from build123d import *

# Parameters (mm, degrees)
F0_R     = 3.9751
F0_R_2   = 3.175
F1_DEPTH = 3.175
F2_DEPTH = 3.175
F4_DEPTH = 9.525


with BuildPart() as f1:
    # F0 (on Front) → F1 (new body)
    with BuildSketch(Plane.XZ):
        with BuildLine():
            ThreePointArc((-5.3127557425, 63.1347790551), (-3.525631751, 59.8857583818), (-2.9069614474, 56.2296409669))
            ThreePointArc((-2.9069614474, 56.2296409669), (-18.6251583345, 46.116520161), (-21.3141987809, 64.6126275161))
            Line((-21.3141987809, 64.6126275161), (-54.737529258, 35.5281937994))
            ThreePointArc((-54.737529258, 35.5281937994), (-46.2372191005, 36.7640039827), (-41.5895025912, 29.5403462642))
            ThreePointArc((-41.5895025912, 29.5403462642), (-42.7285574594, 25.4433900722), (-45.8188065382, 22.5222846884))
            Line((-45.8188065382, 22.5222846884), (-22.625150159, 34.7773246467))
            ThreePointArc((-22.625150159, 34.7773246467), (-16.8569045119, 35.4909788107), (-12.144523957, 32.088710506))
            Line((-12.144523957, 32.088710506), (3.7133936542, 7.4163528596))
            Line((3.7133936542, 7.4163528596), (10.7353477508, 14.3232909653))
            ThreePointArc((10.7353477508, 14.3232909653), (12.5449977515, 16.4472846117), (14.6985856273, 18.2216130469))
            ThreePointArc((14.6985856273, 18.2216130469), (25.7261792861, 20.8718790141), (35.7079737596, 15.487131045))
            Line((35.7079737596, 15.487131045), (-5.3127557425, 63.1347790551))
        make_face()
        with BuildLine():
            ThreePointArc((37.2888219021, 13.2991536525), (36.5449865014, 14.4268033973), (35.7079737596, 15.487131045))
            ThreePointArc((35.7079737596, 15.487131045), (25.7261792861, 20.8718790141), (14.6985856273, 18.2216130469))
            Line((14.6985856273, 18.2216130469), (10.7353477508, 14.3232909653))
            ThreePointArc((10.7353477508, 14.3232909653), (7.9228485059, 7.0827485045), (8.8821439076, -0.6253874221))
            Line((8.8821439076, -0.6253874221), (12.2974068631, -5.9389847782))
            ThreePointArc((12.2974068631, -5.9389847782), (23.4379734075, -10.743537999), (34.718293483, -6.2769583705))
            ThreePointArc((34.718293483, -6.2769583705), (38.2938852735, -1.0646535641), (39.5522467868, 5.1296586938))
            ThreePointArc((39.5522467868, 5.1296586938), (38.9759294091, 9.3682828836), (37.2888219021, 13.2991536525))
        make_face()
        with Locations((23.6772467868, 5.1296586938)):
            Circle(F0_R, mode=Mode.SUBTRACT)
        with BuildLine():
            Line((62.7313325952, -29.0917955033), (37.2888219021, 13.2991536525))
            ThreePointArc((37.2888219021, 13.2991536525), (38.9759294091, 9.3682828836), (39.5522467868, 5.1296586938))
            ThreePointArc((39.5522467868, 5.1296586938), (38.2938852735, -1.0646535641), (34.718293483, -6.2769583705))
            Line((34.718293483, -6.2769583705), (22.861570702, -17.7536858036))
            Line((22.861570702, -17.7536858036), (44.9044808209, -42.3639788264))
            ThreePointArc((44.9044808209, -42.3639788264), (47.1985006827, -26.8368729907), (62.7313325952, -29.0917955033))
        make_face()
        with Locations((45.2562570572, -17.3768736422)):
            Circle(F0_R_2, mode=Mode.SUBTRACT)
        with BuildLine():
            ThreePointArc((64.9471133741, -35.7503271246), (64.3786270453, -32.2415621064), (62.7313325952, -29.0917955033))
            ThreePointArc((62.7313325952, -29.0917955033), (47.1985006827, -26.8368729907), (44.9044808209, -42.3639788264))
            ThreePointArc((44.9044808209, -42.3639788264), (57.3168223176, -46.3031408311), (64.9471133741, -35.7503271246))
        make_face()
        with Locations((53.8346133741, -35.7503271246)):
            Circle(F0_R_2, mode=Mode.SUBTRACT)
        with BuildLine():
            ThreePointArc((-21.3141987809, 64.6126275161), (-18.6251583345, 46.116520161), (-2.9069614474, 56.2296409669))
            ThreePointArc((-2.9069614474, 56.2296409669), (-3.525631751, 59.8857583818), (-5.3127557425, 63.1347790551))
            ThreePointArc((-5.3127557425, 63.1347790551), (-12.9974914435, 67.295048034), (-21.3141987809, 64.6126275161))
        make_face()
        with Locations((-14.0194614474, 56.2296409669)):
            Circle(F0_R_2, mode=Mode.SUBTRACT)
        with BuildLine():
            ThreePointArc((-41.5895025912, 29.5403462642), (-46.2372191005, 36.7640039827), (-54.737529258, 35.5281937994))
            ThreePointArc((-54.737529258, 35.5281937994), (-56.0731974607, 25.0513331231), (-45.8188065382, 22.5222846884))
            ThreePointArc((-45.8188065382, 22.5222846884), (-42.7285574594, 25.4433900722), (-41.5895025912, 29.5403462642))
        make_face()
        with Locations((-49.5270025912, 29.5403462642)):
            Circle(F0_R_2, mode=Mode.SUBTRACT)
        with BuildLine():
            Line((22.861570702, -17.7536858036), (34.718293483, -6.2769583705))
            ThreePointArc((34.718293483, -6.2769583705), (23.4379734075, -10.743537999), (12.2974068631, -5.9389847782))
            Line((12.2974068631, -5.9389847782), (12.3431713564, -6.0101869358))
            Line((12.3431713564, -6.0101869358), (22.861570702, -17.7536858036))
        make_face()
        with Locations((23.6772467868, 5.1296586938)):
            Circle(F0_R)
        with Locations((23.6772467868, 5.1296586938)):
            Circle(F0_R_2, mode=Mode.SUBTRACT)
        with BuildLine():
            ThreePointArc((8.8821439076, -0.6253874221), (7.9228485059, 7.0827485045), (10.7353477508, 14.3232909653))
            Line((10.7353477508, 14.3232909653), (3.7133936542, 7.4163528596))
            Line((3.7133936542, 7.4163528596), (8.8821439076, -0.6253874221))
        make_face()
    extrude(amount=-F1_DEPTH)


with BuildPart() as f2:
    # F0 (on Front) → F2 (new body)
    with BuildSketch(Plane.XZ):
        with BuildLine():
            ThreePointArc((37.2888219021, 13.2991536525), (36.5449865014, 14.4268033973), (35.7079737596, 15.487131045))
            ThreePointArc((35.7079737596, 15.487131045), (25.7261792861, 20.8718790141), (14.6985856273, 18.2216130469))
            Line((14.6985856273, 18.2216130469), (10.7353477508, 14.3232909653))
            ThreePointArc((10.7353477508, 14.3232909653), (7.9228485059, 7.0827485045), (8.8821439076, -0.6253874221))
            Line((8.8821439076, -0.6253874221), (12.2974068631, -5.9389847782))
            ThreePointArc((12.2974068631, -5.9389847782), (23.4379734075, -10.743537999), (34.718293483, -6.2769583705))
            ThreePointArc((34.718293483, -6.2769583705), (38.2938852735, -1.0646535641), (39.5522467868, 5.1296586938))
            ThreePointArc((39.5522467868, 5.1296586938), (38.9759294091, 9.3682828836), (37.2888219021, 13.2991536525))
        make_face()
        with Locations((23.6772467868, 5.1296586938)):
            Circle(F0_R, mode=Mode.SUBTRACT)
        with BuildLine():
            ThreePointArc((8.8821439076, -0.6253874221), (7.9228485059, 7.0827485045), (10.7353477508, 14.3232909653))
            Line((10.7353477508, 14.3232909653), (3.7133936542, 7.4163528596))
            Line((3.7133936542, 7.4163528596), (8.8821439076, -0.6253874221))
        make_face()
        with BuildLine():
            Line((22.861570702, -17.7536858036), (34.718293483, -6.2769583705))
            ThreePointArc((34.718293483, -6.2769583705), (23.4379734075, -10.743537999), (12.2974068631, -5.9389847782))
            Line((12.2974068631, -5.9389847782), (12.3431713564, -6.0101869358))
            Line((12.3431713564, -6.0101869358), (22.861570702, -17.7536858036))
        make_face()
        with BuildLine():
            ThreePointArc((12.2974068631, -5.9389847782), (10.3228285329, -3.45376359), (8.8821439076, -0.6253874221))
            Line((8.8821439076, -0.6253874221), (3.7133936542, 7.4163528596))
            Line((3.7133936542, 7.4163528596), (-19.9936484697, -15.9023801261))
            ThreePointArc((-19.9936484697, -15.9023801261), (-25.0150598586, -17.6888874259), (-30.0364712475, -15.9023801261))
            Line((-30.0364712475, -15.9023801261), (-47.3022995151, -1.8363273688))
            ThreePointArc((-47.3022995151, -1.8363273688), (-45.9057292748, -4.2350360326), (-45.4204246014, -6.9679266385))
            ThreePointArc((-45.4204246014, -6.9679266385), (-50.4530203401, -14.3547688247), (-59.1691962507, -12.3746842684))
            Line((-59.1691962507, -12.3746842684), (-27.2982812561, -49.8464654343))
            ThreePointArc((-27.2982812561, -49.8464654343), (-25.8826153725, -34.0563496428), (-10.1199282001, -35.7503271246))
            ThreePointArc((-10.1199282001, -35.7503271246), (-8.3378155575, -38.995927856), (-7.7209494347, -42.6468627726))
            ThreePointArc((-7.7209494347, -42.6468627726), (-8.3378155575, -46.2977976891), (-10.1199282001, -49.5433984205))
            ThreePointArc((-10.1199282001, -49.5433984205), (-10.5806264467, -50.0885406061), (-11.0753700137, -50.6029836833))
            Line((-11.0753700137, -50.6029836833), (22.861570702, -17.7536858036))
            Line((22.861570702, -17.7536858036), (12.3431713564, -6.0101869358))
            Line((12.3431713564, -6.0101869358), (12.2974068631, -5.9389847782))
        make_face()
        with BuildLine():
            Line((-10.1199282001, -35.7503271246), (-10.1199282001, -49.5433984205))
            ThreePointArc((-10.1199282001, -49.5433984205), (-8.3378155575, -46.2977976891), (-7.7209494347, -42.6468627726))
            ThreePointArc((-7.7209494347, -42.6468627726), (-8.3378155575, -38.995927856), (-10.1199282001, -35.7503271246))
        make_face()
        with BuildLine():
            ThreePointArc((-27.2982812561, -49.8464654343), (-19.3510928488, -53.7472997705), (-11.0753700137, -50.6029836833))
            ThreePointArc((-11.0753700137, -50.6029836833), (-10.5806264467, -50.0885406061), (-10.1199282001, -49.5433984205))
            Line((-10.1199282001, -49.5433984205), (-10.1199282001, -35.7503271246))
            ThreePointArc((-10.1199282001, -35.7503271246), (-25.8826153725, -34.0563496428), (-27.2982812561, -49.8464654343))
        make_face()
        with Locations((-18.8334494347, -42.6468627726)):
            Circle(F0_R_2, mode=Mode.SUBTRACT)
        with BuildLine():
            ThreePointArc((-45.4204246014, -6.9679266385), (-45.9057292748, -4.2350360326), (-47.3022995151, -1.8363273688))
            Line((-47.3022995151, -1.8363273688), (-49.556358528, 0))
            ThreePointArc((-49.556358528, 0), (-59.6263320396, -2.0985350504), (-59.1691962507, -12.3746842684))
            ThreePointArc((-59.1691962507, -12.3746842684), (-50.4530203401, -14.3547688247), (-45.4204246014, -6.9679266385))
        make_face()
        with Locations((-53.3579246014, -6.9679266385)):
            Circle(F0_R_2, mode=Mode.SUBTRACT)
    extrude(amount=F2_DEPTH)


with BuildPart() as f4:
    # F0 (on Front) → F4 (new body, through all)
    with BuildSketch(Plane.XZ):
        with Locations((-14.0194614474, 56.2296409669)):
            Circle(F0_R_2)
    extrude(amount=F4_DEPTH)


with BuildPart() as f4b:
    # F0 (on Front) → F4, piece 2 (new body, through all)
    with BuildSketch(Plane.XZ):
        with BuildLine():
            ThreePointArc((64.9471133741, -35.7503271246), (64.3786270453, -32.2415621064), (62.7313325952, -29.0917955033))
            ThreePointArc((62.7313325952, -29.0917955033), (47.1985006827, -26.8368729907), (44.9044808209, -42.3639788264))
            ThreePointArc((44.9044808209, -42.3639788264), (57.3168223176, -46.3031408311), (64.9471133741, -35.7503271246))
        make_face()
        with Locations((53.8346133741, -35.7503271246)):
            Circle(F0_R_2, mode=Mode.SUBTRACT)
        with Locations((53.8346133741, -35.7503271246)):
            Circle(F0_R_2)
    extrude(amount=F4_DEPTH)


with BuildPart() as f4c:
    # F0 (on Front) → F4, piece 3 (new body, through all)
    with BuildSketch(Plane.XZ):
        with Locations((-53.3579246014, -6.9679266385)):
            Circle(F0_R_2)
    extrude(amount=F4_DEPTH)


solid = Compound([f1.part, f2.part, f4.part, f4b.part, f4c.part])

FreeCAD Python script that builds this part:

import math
import FreeCAD as App
import Part
import Sketcher
Q = App.Units.Quantity

doc = App.newDocument("Part")
body = doc.addObject("PartDesign::Body", "Body")

sketch1 = body.newObject("Sketcher::SketchObject", "Sketch")
sketch1.AttachmentSupport = (doc.getObject("XZ_Plane"), [""])
sketch1.MapMode = "FlatFace"
sketch1.addGeometry([
    Part.LineSegment(App.Vector(-12.144524, 32.088711, 0), App.Vector(3.713394, 7.416353, 0)),
    Part.LineSegment(App.Vector(3.713394, 7.416353, 0), App.Vector(8.882144, -0.625387, 0)),
    Part.LineSegment(App.Vector(8.882144, -0.625387, 0), App.Vector(12.297407, -5.938985, 0)),
    Part.LineSegment(App.Vector(12.297407, -5.938985, 0), App.Vector(12.343171, -6.010187, 0)),
    Part.LineSegment(App.Vector(12.343171, -6.010187, 0), App.Vector(22.861571, -17.753686, 0)),
    Part.LineSegment(App.Vector(22.861571, -17.753686, 0), App.Vector(44.904481, -42.363979, 0)),
    Part.ArcOfCircle(Part.Circle(App.Vector(53.834613, -35.750327, 0), App.Vector(0, 0, 1), 11.1125), math.radians(-143.47637), math.radians(0)),
    Part.ArcOfCircle(Part.Circle(App.Vector(53.834613, -35.750327, 0), App.Vector(0, 0, 1), 11.1125), math.radians(0), math.radians(36.812119)),
    Part.LineSegment(App.Vector(62.731333, -29.091796, 0), App.Vector(37.288822, 13.299154, 0)),
    Part.ArcOfCircle(Part.Circle(App.Vector(23.677247, 5.129659, 0), App.Vector(0, 0, 1), 15.875), math.radians(30.971648), math.radians(40.725761)),
    Part.LineSegment(App.Vector(35.707974, 15.487131, 0), App.Vector(-5.312756, 63.134779, 0)),
    Part.ArcOfCircle(Part.Circle(App.Vector(-14.019461, 56.229641, 0), App.Vector(0, 0, 1), 11.1125), math.radians(38.417327), math.radians(131.029256)),
    Part.LineSegment(App.Vector(-21.314199, 64.612628, 0), App.Vector(-54.737529, 35.528194, 0)),
    Part.ArcOfCircle(Part.Circle(App.Vector(-49.527003, 29.540346, 0), App.Vector(0, 0, 1), 7.9375), math.radians(131.029256), math.radians(297.85103)),
    Part.LineSegment(App.Vector(-45.818807, 22.522285, 0), App.Vector(-22.62515, 34.777325, 0)),
    Part.ArcOfCircle(Part.Circle(App.Vector(-18.832417, 27.790133, 0), App.Vector(0, 0, 1), 7.9502), math.radians(32.730487), math.radians(118.493653)),
    Part.Circle(App.Vector(53.834613, -35.750327, 0), App.Vector(0, 0, 1), 3.175),
    Part.Circle(App.Vector(45.256257, -17.376874, 0), App.Vector(0, 0, 1), 3.175),
    Part.Circle(App.Vector(23.677247, 5.129659, 0), App.Vector(0, 0, 1), 3.175),
    Part.Circle(App.Vector(-49.527003, 29.540346, 0), App.Vector(0, 0, 1), 3.175),
    Part.Circle(App.Vector(-14.019461, 56.229641, 0), App.Vector(0, 0, 1), 3.175),
    Part.LineSegment(App.Vector(14.698586, 18.221613, 0), App.Vector(10.735348, 14.323291, 0)),
    Part.ArcOfCircle(Part.Circle(App.Vector(23.677247, 5.129659, 0), App.Vector(0, 0, 1), 15.875), math.radians(124.442921), math.radians(144.610875)),
], False)
sketch1.addConstraint([
    Sketcher.Constraint("Coincident", 0, 2, 1, 1),
    Sketcher.Constraint("Coincident", 1, 2, 2, 1),
    Sketcher.Constraint("Coincident", 2, 2, 3, 1),
    Sketcher.Constraint("Coincident", 3, 2, 4, 1),
    Sketcher.Constraint("Coincident", 4, 2, 5, 1),
    Sketcher.Constraint("Coincident", 5, 2, 6, 1),
    Sketcher.Constraint("Coincident", 6, 2, 7, 1),
    Sketcher.Constraint("Coincident", 7, 2, 8, 1),
    Sketcher.Constraint("Coincident", 8, 2, 9, 1),
    Sketcher.Constraint("Coincident", 9, 2, 10, 1),
    Sketcher.Constraint("Coincident", 10, 2, 11, 1),
    Sketcher.Constraint("Coincident", 11, 2, 12, 1),
    Sketcher.Constraint("Coincident", 12, 2, 13, 1),
    Sketcher.Constraint("Coincident", 13, 2, 14, 1),
    Sketcher.Constraint("Coincident", 14, 2, 15, 2),
    Sketcher.Constraint("Coincident", 15, 1, 0, 1),
    Sketcher.Constraint("Coincident", 21, 1, 22, 1),
    Sketcher.Constraint("Coincident", 22, 2, 21, 2),
    Sketcher.Constraint("Coincident", 7, 3, 6, 3),
    Sketcher.Constraint("Coincident", 16, 3, 6, 3),
    Sketcher.Constraint("Coincident", 18, 3, 9, 3),
    Sketcher.Constraint("Coincident", 19, 3, 13, 3),
    Sketcher.Constraint("Coincident", 20, 3, 11, 3),
    Sketcher.Constraint("Coincident", 22, 3, 9, 3),
    Sketcher.Constraint("Diameter", 16, Q("0.25 in")),
    Sketcher.Constraint("Diameter", 17, Q("0.25 in")),
    Sketcher.Constraint("Diameter", 18, Q("0.25 in")),
    Sketcher.Constraint("Diameter", 19, Q("0.25 in")),
    Sketcher.Constraint("Diameter", 20, Q("0.25 in")),
    Sketcher.Constraint("Radius", 6, Q("0.4375 in")),
    Sketcher.Constraint("Radius", 9, Q("0.625 in")),
    Sketcher.Constraint("Radius", 11, Q("0.4375 in")),
    Sketcher.Constraint("Radius", 13, Q("0.3125 in")),
    Sketcher.Constraint("Radius", 15, Q("0.313 in")),
    Sketcher.Constraint("Radius", 22, Q("0.625 in")),
    Sketcher.Constraint("DistanceY", 3, 2, 1, 2, Q("0.212 in")),
    Sketcher.Constraint("DistanceX", 11, 2, -1, 1, Q("21.314199 mm")),
    Sketcher.Constraint("DistanceX", 3, 2, 4, 2, Q("10.518399 mm")),
    Sketcher.Constraint("DistanceY", 4, 2, 3, 2, Q("11.743499 mm")),
    Sketcher.Constraint("DistanceY", 4, 2, 2, 2, Q("11.814701 mm")),
    Sketcher.Constraint("DistanceY", 1, 2, 21, 1, Q("18.847 mm")),
    Sketcher.Constraint("DistanceX", 22, 2, 22, 3, Q("12.941899 mm")),
    Sketcher.Constraint("Distance", 1, Q("9.55958 mm")),
    Sketcher.Constraint("Distance", 3, Q("0.084641 mm")),
    Sketcher.Constraint("Distance", 5, Q("33.038711 mm")),
    Sketcher.Constraint("Distance", 12, Q("44.306019 mm")),
    Sketcher.Constraint("Distance", 21, Q("5.559152 mm")),
    Sketcher.Constraint("DistanceY", -1, 1, 9, 3, Q("5.129659 mm")),
    Sketcher.Constraint("DistanceX", 11, 3, -1, 1, Q("14.019461 mm")),
    Sketcher.Constraint("DistanceY", -1, 1, 11, 3, Q("56.229641 mm")),
    Sketcher.Constraint("DistanceX", -1, 1, 3, 2, Q("12.343171 mm")),
    Sketcher.Constraint("DistanceX", -1, 1, 5, 2, Q("44.904481 mm")),
    Sketcher.Constraint("DistanceX", -1, 1, 8, 2, Q("37.288822 mm")),
    Sketcher.Constraint("DistanceY", -1, 1, 9, 2, Q("15.487131 mm")),
    Sketcher.Constraint("DistanceY", -1, 1, 10, 2, Q("63.134779 mm")),
    Sketcher.Constraint("DistanceX", 12, 2, -1, 1, Q("54.737529 mm")),
    Sketcher.Constraint("DistanceX", 14, 2, -1, 1, Q("22.62515 mm")),
    Sketcher.Constraint("DistanceY", -1, 1, 15, 1, Q("32.088711 mm")),
    Sketcher.Constraint("DistanceX", 11, 3, 9, 3, Q("37.696708 mm")),
    Sketcher.Constraint("DistanceY", 7, 3, 11, 3, Q("91.979968 mm")),
    Sketcher.Constraint("DistanceX", 13, 3, 11, 3, Q("35.507541 mm")),
    Sketcher.Constraint("DistanceY", 15, 3, 11, 3, Q("28.439508 mm")),
    Sketcher.Constraint("DistanceX", 15, 3, 6, 3, Q("72.66703 mm")),
    Sketcher.Constraint("DistanceX", 9, 3, 17, 3, Q("21.57901 mm")),
    Sketcher.Constraint("DistanceX", 15, 3, 0, 2, Q("22.54581 mm")),
    Sketcher.Constraint("DistanceY", 0, 2, 15, 3, Q("20.37378 mm")),
    Sketcher.Constraint("DistanceY", 5, 2, 6, 2, Q("6.613652 mm")),
    Sketcher.Constraint("DistanceX", 7, 2, 6, 2, Q("2.215781 mm")),
    Sketcher.Constraint("DistanceY", 7, 2, 17, 3, Q("11.714922 mm")),
    Sketcher.Constraint("DistanceY", 13, 2, 13, 3, Q("7.018062 mm")),
])
pad1 = body.newObject("PartDesign::Pad", "Pad")
pad1.Profile = sketch1
pad1.Length = Q("0.125 in")
pad1.Reversed = True
body2 = doc.addObject("PartDesign::Body", "Body001")

sketch2 = body2.newObject("Sketcher::SketchObject", "Sketch001")
sketch2.AttachmentSupport = (doc.getObject("XZ_Plane001"), [""])
sketch2.MapMode = "FlatFace"
sketch2.addGeometry([
    Part.ArcOfCircle(Part.Circle(App.Vector(23.677247, 5.129659, 0), App.Vector(0, 0, 1), 15.875), math.radians(30.971648), math.radians(40.725761)),
    Part.ArcOfCircle(Part.Circle(App.Vector(23.677247, 5.129659, 0), App.Vector(0, 0, 1), 15.875), math.radians(40.725761), math.radians(124.442921)),
    Part.LineSegment(App.Vector(14.698586, 18.221613, 0), App.Vector(10.735348, 14.323291, 0)),
    Part.LineSegment(App.Vector(10.735348, 14.323291, 0), App.Vector(3.713394, 7.416353, 0)),
    Part.LineSegment(App.Vector(3.713394, 7.416353, 0), App.Vector(-19.993648, -15.90238, 0)),
    Part.ArcOfCircle(Part.Circle(App.Vector(-25.01506, -9.738687, 0), App.Vector(0, 0, 1), 7.9502), math.radians(-129.168871), math.radians(-50.831129)),
    Part.LineSegment(App.Vector(-30.036471, -15.90238, 0), App.Vector(-47.3023, -1.836327, 0)),
    Part.LineSegment(App.Vector(-47.3023, -1.836327, 0), App.Vector(-49.556359, 0, 0)),
    Part.ArcOfCircle(Part.Circle(App.Vector(-53.357925, -6.967927, 0), App.Vector(0, 0, 1), 7.9375), math.radians(61.383971), math.radians(222.93485)),
    Part.LineSegment(App.Vector(-59.169196, -12.374684, 0), App.Vector(-27.298281, -49.846465, 0)),
    Part.ArcOfCircle(Part.Circle(App.Vector(-18.833449, -42.646863, 0), App.Vector(0, 0, 1), 11.1125), math.radians(-139.617802), math.radians(-45.722044)),
    Part.LineSegment(App.Vector(-11.07537, -50.602984, 0), App.Vector(22.861571, -17.753686, 0)),
    Part.LineSegment(App.Vector(22.861571, -17.753686, 0), App.Vector(34.718293, -6.276958, 0)),
    Part.ArcOfCircle(Part.Circle(App.Vector(23.677247, 5.129659, 0), App.Vector(0, 0, 1), 15.875), math.radians(-45.933005), math.radians(30.971648)),
    Part.Circle(App.Vector(-18.833449, -42.646863, 0), App.Vector(0, 0, 1), 3.175),
    Part.Circle(App.Vector(-53.357925, -6.967927, 0), App.Vector(0, 0, 1), 3.175),
    Part.LineSegment(App.Vector(8.882144, -0.625387, 0), App.Vector(12.297407, -5.938985, 0)),
    Part.ArcOfCircle(Part.Circle(App.Vector(23.677247, 5.129659, 0), App.Vector(0, 0, 1), 15.875), math.radians(-158.744802), math.radians(-135.794223)),
    Part.Circle(App.Vector(23.677247, 5.129659, 0), App.Vector(0, 0, 1), 3.9751),
], False)
sketch2.addConstraint([
    Sketcher.Constraint("Coincident", 0, 2, 1, 1),
    Sketcher.Constraint("Coincident", 1, 2, 2, 1),
    Sketcher.Constraint("Coincident", 2, 2, 3, 1),
    Sketcher.Constraint("Coincident", 3, 2, 4, 1),
    Sketcher.Constraint("Coincident", 4, 2, 5, 2),
    Sketcher.Constraint("Coincident", 5, 1, 6, 1),
    Sketcher.Constraint("Coincident", 6, 2, 7, 1),
    Sketcher.Constraint("Coincident", 7, 2, 8, 1),
    Sketcher.Constraint("Coincident", 8, 2, 9, 1),
    Sketcher.Constraint("Coincident", 9, 2, 10, 1),
    Sketcher.Constraint("Coincident", 10, 2, 11, 1),
    Sketcher.Constraint("Coincident", 11, 2, 12, 1),
    Sketcher.Constraint("Coincident", 12, 2, 13, 1),
    Sketcher.Constraint("Coincident", 13, 2, 0, 1),
    Sketcher.Constraint("Coincident", 16, 1, 17, 1),
    Sketcher.Constraint("Coincident", 17, 2, 16, 2),
    Sketcher.Constraint("Coincident", 1, 3, 0, 3),
    Sketcher.Constraint("Coincident", 13, 3, 0, 3),
    Sketcher.Constraint("Coincident", 14, 3, 10, 3),
    Sketcher.Constraint("Coincident", 15, 3, 8, 3),
    Sketcher.Constraint("Coincident", 17, 3, 0, 3),
    Sketcher.Constraint("Coincident", 18, 3, 0, 3),
    Sketcher.Constraint("PointOnObject", 7, 2, -1),
    Sketcher.Constraint("Diameter", 14, Q("0.25 in")),
    Sketcher.Constraint("Diameter", 15, Q("0.25 in")),
    Sketcher.Constraint("Diameter", 18, Q("0.313 in")),
    Sketcher.Constraint("Radius", 0, Q("0.625 in")),
    Sketcher.Constraint("Radius", 5, Q("0.313 in")),
    Sketcher.Constraint("Radius", 8, Q("0.3125 in")),
    Sketcher.Constraint("Radius", 10, Q("0.4375 in")),
    Sketcher.Constraint("Radius", 17, Q("0.625 in")),
    Sketcher.Constraint("DistanceX", 5, 1, 10, 2, Q("0.7465 in")),
    Sketcher.Constraint("DistanceX", 6, 2, -1, 1, Q("47.3023 mm")),
    Sketcher.Constraint("DistanceX", 2, 2, 17, 3, Q("12.941899 mm")),
    Sketcher.Constraint("DistanceX", 4, 2, 10, 3, Q("1.160199 mm")),
    Sketcher.Constraint("DistanceY", 15, 3, 6, 2, Q("5.131599 mm")),
    Sketcher.Constraint("DistanceX", 7, 2, 5, 3, Q("24.541299 mm")),
    Sketcher.Constraint("DistanceY", 11, 2, 17, 2, Q("11.814701 mm")),
    Sketcher.Constraint("Distance", 2, Q("5.559152 mm")),
    Sketcher.Constraint("Distance", 3, Q("9.84955 mm")),
    Sketcher.Constraint("Distance", 4, Q("33.253378 mm")),
    Sketcher.Constraint("Distance", 6, Q("22.270219 mm")),
    Sketcher.Constraint("Distance", 12, Q("16.501429 mm")),
    Sketcher.Constraint("DistanceY", -1, 1, 0, 3, Q("5.129659 mm")),
    Sketcher.Constraint("DistanceX", 5, 3, -1, 1, Q("25.01506 mm")),
    Sketcher.Constraint("DistanceX", 10, 3, -1, 1, Q("18.833449 mm")),
    Sketcher.Constraint("DistanceY", -1, 1, 0, 2, Q("15.487131 mm")),
    Sketcher.Constraint("DistanceY", -1, 1, 2, 2, Q("14.323291 mm")),
    Sketcher.Constraint("DistanceY", 4, 2, -1, 1, Q("15.90238 mm")),
    Sketcher.Constraint("DistanceX", 5, 1, -1, 1, Q("30.036471 mm")),
    Sketcher.Constraint("DistanceX", 9, 2, -1, 1, Q("27.298281 mm")),
    Sketcher.Constraint("DistanceX", -1, 1, 11, 2, Q("22.861571 mm")),
    Sketcher.Constraint("DistanceY", 12, 2, -1, 1, Q("6.276958 mm")),
    Sketcher.Constraint("DistanceX", -1, 1, 13, 2, Q("37.288822 mm")),
    Sketcher.Constraint("DistanceY", 10, 3, 1, 3, Q("47.776521 mm")),
    Sketcher.Constraint("DistanceY", 3, 2, 2, 2, Q("6.906938 mm")),
    Sketcher.Constraint("DistanceX", 8, 2, 8, 3, Q("5.811272 mm")),
    Sketcher.Constraint("DistanceX", 3, 2, 16, 1, Q("5.16875 mm")),
])
pad2 = body2.newObject("PartDesign::Pad", "Pad001")
pad2.Profile = sketch2
pad2.Length = Q("0.125 in")
body3 = doc.addObject("PartDesign::Body", "Body002")

sketch3 = body3.newObject("Sketcher::SketchObject", "Sketch002")
sketch3.AttachmentSupport = (doc.getObject("XZ_Plane002"), [""])
sketch3.MapMode = "FlatFace"
sketch3.addGeometry(Part.Circle(App.Vector(-14.019461, 56.229641, 0), App.Vector(0, 0, 1), 3.175), False)
sketch3.addConstraint([
    Sketcher.Constraint("Diameter", 0, Q("0.25 in")),
    Sketcher.Constraint("DistanceX", 0, 3, -1, 1, Q("14.019461 mm")),
    Sketcher.Constraint("DistanceY", -1, 1, 0, 3, Q("56.229641 mm")),
])
pad3 = body3.newObject("PartDesign::Pad", "Pad002")
pad3.Profile = sketch3
pad3.Length = Q("0.375 in")
body4 = doc.addObject("PartDesign::Body", "Body003")

sketch4 = body4.newObject("Sketcher::SketchObject", "Sketch003")
sketch4.AttachmentSupport = (doc.getObject("XZ_Plane003"), [""])
sketch4.MapMode = "FlatFace"
sketch4.addGeometry([
    Part.ArcOfCircle(Part.Circle(App.Vector(53.834613, -35.750327, 0), App.Vector(0, 0, 1), 11.1125), math.radians(0), math.radians(36.812119)),
    Part.ArcOfCircle(Part.Circle(App.Vector(53.834613, -35.750327, 0), App.Vector(0, 0, 1), 11.1125), math.radians(36.812119), math.radians(216.52363)),
    Part.ArcOfCircle(Part.Circle(App.Vector(53.834613, -35.750327, 0), App.Vector(0, 0, 1), 11.1125), math.radians(-143.47637), math.radians(0)),
], False)
sketch4.addConstraint([
    Sketcher.Constraint("Tangent", 0, 2, 1, 1),
    Sketcher.Constraint("Tangent", 1, 2, 2, 1),
    Sketcher.Constraint("Tangent", 2, 2, 0, 1),
    Sketcher.Constraint("Horizontal", 1, 3, 2, 2),
    Sketcher.Constraint("Radius", 0, Q("0.4375 in")),
    Sketcher.Constraint("DistanceX", -1, 1, 1, 2, Q("44.904481 mm")),
    Sketcher.Constraint("DistanceY", 1, 2, -1, 1, Q("42.363979 mm")),
    Sketcher.Constraint("DistanceX", 0, 3, 0, 2, Q("8.896719 mm")),
    Sketcher.Constraint("DistanceY", 1, 2, 1, 3, Q("6.613652 mm")),
])
pad4 = body4.newObject("PartDesign::Pad", "Pad003")
pad4.Profile = sketch4
pad4.Length = Q("0.375 in")
body5 = doc.addObject("PartDesign::Body", "Body004")

sketch5 = body5.newObject("Sketcher::SketchObject", "Sketch004")
sketch5.AttachmentSupport = (doc.getObject("XZ_Plane004"), [""])
sketch5.MapMode = "FlatFace"
sketch5.addGeometry(Part.Circle(App.Vector(-53.357925, -6.967927, 0), App.Vector(0, 0, 1), 3.175), False)
sketch5.addConstraint([
    Sketcher.Constraint("Diameter", 0, Q("0.25 in")),
    Sketcher.Constraint("DistanceX", 0, 3, -1, 1, Q("53.357925 mm")),
    Sketcher.Constraint("DistanceY", 0, 3, -1, 1, Q("6.967927 mm")),
])
pad5 = body5.newObject("PartDesign::Pad", "Pad004")
pad5.Profile = sketch5
pad5.Length = Q("0.375 in")

doc.recompute()
